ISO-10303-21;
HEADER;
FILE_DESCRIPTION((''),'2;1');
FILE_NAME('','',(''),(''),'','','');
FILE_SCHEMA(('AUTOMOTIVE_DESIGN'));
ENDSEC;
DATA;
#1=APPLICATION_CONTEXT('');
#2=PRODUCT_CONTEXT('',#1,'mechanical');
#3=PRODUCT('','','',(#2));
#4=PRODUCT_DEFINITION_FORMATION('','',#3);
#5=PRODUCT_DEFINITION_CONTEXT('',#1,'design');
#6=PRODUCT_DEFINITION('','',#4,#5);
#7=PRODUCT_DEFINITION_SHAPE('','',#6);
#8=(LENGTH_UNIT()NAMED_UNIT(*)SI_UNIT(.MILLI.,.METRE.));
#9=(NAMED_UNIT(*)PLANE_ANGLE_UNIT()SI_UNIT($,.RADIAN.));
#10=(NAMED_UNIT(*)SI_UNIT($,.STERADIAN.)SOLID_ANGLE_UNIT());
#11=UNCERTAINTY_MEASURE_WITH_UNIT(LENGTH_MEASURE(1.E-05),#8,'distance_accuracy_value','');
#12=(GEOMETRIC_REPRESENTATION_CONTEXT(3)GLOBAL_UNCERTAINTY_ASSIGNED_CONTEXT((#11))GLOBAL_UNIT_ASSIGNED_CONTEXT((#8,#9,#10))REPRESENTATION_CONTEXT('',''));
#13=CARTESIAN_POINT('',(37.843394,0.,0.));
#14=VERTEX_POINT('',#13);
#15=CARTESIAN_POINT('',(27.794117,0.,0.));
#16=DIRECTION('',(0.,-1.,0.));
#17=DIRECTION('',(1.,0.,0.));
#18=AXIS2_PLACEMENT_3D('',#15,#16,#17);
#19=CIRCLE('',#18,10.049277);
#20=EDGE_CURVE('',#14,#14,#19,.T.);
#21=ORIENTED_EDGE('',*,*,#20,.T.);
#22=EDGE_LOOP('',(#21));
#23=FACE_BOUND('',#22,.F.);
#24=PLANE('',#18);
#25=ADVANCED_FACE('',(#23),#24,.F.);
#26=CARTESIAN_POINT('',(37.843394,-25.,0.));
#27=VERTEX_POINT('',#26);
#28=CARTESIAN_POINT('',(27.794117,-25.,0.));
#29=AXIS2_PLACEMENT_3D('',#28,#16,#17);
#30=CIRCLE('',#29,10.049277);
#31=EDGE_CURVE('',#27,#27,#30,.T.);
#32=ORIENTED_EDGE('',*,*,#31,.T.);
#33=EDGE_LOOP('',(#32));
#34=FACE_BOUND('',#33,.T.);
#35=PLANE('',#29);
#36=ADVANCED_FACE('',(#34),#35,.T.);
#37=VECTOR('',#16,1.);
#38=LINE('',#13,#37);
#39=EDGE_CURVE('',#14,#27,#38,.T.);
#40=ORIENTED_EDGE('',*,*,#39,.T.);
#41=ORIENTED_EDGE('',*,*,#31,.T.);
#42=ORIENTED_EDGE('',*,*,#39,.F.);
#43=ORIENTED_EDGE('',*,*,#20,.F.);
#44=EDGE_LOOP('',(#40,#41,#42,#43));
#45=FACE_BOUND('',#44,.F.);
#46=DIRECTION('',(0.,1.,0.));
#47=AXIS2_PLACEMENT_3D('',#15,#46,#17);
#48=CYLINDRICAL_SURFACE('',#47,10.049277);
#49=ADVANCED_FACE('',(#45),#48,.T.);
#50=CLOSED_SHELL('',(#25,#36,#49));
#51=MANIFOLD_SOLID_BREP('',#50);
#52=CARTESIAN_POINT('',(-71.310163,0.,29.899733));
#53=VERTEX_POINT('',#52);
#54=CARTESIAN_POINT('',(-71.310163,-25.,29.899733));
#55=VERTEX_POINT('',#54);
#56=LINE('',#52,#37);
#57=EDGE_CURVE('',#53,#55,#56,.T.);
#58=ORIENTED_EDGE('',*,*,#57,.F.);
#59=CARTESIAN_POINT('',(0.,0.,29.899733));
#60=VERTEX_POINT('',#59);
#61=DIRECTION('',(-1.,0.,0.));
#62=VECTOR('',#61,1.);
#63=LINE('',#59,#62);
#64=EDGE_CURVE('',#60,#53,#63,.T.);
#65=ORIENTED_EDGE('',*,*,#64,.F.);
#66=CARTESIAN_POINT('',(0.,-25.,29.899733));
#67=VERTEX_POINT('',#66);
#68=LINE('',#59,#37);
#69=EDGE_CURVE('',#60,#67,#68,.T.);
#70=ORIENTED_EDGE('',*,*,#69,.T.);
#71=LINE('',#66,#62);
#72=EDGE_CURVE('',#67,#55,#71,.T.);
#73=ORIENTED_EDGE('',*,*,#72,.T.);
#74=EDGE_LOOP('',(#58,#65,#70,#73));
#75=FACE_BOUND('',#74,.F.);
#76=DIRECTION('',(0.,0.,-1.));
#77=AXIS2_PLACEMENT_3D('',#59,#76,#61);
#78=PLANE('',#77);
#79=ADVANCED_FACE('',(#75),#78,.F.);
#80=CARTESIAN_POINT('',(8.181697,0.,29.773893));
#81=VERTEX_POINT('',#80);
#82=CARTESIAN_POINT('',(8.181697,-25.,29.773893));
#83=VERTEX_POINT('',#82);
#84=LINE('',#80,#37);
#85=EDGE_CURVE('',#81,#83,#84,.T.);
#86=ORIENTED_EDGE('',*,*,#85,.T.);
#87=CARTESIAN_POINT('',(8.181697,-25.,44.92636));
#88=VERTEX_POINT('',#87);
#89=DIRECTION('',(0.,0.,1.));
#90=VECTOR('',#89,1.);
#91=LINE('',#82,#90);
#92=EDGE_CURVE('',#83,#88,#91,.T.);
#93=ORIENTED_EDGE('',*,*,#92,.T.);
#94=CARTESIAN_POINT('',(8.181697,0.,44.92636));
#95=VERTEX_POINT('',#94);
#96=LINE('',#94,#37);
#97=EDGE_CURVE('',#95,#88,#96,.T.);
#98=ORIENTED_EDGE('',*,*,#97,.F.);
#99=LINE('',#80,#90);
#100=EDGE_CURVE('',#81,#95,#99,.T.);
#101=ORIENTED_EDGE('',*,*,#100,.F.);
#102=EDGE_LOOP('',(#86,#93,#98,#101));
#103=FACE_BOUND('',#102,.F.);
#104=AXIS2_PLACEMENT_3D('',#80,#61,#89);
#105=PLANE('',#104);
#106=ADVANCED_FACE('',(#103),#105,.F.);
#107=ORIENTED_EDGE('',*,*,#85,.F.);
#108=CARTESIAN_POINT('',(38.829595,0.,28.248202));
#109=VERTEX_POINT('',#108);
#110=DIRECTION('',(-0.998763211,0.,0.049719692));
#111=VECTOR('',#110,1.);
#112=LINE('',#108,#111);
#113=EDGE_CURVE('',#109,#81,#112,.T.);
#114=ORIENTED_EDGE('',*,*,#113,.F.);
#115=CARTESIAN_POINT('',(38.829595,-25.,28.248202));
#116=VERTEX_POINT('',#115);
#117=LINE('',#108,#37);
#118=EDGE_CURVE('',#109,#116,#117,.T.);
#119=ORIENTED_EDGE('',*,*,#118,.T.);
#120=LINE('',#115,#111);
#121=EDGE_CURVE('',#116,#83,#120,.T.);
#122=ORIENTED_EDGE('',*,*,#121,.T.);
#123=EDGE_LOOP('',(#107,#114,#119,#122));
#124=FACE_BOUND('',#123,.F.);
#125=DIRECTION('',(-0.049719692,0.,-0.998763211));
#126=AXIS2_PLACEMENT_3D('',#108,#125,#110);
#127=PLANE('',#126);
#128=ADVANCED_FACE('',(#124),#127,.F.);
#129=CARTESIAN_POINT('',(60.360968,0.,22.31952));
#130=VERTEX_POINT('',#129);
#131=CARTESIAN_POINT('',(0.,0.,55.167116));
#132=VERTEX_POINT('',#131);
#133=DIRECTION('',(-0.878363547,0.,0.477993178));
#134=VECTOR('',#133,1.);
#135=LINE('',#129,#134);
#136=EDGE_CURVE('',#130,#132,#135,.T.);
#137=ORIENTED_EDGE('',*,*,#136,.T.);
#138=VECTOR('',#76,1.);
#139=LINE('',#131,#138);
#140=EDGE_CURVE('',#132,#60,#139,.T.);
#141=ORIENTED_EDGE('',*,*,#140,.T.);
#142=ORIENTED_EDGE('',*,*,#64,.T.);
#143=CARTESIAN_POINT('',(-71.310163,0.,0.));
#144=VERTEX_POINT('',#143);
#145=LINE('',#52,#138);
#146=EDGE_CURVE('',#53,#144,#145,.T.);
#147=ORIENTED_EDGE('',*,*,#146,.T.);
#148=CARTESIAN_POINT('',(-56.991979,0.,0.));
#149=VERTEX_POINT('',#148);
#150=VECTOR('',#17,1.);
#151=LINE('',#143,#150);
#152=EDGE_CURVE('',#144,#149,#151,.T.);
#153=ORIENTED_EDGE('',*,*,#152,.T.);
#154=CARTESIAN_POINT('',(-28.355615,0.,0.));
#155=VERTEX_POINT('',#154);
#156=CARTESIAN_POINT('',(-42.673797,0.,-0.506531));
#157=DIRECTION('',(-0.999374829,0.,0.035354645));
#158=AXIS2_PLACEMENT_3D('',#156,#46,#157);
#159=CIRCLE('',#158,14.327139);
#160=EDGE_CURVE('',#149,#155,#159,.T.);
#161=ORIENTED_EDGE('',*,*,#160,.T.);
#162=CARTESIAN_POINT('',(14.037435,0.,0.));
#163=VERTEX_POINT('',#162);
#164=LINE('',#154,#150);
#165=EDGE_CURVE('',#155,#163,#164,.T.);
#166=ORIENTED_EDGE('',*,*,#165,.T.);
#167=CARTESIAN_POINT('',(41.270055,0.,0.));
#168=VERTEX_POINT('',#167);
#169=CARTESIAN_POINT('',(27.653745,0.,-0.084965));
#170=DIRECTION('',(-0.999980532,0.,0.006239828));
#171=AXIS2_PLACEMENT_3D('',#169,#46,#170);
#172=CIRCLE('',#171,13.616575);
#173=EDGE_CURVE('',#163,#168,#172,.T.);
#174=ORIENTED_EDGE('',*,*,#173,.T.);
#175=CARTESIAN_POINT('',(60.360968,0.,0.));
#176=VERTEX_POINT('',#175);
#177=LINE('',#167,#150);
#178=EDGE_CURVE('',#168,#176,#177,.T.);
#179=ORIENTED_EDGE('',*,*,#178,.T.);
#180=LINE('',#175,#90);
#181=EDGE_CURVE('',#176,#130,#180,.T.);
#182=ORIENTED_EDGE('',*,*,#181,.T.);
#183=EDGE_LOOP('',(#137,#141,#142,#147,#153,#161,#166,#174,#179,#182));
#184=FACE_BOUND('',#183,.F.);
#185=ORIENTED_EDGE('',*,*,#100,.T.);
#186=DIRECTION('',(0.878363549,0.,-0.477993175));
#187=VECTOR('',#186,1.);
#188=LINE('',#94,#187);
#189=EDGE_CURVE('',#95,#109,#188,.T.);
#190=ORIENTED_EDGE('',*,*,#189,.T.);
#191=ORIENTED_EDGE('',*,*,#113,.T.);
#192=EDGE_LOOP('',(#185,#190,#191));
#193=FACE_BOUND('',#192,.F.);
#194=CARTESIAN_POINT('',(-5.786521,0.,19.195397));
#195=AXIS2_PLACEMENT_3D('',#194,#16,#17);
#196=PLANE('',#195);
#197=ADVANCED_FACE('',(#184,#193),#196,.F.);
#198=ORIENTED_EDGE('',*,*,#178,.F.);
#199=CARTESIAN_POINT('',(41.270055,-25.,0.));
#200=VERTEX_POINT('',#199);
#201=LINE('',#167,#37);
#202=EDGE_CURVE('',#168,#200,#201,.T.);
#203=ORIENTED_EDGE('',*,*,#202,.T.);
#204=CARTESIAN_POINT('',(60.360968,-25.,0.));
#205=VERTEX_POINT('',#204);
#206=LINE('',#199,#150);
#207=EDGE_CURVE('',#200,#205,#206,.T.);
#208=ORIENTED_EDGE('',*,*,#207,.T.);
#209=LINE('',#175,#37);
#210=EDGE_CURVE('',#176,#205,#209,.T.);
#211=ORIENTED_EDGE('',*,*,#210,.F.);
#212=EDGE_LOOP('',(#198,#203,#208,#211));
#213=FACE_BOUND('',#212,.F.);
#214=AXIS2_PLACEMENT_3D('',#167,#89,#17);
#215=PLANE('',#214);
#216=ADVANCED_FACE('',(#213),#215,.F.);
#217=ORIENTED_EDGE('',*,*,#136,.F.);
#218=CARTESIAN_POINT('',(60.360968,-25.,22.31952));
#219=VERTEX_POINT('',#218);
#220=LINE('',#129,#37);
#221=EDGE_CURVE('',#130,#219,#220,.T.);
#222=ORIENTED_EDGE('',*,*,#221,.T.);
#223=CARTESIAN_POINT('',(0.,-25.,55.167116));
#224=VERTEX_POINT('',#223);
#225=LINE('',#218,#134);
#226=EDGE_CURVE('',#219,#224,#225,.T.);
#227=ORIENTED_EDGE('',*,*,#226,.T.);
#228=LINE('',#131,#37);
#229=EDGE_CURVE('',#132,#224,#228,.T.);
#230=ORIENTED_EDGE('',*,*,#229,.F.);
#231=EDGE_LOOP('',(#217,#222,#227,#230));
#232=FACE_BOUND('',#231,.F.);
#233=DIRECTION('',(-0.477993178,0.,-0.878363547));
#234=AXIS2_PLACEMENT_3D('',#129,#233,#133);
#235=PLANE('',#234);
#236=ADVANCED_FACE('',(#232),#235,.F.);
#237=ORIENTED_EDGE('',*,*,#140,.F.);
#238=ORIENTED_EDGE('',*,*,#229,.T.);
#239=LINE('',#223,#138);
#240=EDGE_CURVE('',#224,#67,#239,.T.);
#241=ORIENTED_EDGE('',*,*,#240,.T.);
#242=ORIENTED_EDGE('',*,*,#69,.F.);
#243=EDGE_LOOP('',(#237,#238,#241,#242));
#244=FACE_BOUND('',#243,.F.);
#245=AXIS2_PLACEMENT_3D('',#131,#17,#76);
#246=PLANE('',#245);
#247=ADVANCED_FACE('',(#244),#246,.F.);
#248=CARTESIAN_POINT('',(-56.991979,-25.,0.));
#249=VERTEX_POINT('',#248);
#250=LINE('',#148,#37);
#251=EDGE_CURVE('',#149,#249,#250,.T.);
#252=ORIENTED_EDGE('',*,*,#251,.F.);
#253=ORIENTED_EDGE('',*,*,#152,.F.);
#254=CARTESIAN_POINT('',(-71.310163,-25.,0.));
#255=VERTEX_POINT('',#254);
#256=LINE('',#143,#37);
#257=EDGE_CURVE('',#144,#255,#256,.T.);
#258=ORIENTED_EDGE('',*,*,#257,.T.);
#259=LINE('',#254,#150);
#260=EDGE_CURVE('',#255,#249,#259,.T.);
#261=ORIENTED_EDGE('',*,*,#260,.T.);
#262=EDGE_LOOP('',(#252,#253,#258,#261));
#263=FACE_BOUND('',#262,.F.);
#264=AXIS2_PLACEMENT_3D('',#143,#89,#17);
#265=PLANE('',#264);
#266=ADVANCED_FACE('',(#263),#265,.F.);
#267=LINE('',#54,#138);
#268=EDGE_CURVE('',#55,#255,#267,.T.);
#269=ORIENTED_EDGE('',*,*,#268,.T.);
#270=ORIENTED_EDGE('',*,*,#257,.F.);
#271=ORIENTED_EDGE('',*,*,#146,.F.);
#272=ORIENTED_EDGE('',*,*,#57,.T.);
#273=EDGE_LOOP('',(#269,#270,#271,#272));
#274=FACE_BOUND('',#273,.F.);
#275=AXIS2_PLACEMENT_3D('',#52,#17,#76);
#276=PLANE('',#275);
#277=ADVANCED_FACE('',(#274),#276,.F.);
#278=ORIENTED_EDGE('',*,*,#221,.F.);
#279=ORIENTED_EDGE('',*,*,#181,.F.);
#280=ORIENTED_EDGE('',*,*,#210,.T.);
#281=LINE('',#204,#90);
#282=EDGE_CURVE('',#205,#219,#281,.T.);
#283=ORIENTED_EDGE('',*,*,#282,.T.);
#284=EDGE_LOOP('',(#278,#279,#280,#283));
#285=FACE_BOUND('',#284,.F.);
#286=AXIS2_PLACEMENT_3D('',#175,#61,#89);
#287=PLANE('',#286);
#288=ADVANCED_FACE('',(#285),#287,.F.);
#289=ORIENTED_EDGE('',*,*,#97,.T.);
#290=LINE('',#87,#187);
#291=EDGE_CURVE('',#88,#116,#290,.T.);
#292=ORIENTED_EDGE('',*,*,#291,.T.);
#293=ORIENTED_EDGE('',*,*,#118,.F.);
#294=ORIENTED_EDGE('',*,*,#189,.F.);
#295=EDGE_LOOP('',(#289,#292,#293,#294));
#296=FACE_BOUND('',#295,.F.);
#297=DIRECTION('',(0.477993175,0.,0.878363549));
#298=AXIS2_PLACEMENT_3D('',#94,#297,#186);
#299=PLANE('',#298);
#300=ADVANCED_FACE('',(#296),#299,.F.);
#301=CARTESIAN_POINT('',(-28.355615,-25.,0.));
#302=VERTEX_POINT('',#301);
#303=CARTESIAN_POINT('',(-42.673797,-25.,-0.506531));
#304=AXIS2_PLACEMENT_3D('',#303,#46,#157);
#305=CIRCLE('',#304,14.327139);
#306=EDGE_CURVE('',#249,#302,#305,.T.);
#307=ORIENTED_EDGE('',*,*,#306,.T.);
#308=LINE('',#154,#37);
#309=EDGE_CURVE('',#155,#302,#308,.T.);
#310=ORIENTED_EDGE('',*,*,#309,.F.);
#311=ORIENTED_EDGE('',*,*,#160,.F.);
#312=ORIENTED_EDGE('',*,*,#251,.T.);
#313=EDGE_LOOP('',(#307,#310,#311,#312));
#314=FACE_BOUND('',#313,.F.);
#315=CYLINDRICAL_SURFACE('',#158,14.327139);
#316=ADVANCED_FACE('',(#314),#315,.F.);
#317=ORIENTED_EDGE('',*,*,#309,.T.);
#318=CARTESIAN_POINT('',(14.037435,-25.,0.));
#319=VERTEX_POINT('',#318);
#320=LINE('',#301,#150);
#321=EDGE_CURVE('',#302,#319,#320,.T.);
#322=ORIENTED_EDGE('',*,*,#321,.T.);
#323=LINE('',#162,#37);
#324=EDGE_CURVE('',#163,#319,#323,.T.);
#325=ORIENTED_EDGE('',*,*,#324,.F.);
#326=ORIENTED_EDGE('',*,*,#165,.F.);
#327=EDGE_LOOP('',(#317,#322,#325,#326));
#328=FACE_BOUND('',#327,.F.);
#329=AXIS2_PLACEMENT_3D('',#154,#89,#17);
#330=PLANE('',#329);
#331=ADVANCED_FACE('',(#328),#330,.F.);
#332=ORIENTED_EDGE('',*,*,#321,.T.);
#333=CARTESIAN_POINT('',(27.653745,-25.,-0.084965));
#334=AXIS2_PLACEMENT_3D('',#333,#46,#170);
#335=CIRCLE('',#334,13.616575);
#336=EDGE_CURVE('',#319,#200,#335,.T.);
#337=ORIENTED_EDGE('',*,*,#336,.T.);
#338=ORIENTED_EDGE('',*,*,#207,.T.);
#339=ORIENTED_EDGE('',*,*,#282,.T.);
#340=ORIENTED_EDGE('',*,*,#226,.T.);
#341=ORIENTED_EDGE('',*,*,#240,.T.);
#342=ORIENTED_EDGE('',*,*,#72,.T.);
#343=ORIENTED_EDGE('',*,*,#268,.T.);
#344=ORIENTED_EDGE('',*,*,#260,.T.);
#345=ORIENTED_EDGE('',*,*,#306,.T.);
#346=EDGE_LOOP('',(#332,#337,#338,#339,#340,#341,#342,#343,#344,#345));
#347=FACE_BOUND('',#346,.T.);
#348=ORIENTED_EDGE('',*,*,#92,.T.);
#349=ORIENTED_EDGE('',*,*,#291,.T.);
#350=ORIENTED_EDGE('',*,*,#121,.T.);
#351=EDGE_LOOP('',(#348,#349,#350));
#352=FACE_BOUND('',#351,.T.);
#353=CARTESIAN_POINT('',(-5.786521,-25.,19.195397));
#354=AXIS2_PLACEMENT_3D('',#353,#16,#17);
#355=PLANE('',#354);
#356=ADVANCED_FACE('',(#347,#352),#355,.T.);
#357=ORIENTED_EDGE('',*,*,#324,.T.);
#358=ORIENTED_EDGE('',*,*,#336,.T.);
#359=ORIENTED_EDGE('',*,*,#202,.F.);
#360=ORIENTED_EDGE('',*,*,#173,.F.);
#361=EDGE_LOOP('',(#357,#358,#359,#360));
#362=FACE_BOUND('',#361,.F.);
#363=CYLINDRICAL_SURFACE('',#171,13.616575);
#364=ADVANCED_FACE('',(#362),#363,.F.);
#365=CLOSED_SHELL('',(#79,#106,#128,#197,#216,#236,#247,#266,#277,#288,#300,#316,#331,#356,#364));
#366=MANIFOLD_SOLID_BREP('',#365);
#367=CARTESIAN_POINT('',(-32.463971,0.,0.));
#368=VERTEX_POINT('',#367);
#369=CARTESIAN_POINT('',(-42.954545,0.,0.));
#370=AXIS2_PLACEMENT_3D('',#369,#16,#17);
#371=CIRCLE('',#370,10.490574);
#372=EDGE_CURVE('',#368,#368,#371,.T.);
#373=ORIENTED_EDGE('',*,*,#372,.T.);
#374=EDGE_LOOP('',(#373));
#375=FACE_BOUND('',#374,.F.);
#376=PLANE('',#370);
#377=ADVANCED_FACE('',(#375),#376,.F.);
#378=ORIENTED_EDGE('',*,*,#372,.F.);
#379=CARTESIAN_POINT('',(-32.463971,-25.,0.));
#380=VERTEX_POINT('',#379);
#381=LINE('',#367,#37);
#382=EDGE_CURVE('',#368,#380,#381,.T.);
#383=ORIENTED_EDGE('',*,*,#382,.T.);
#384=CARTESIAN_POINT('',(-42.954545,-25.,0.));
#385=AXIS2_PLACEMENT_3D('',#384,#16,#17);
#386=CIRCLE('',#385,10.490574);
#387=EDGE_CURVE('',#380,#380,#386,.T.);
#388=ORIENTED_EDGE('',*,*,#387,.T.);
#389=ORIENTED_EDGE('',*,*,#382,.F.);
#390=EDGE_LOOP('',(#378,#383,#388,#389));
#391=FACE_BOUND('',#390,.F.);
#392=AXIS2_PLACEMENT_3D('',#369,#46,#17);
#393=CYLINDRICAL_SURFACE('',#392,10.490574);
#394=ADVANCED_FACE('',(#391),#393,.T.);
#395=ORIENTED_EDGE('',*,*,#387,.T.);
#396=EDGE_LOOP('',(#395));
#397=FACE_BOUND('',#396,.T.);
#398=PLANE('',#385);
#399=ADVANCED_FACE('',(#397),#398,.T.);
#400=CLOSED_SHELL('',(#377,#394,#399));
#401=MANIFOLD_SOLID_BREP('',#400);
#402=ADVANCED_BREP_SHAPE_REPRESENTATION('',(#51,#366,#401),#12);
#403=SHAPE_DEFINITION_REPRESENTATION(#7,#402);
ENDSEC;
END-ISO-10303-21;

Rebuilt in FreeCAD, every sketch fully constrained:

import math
import FreeCAD as App
import Part
import Sketcher

V = App.Vector
Q = App.Units.Quantity


def add_polygon(sketch, points):
    """Adds a closed chain of lines whose ends are joined by coincident constraints."""
    first, n = sketch.GeometryCount, len(points)
    for a, b in zip(points, points[1:] + points[:1]):
        sketch.addGeometry(Part.LineSegment(App.Vector(*a, 0), App.Vector(*b, 0)), False)
    for i in range(n):
        sketch.addConstraint(Sketcher.Constraint("Coincident", first + i, 2, first + (i + 1) % n, 1))

doc = App.newDocument("Part")
body = doc.addObject("PartDesign::Body", "Body")
body.AllowCompound = True

# Sketch on XZ plane
sketch1 = doc.addObject("Sketcher::SketchObject", "Sketch")
body.addObject(sketch1)
sketch1.AttachmentSupport = (doc.XZ_Plane, [""])
sketch1.MapMode = "FlatFace"
sketch1.addGeometry(Part.Circle(V(-43, 0, 0), V(0, 0, 1), 10), False)  # 0
sketch1.addGeometry(Part.Circle(V(28, 0, 0), V(0, 0, 1), 10), False)  # 1
sketch1.addGeometry(Part.LineSegment(V(-71, 30, 0), V(-71, 0, 0)), False)  # 2
sketch1.addGeometry(Part.LineSegment(V(-71, 0, 0), V(-57, 0, 0)), False)  # 3
sketch1.addGeometry(Part.ArcOfCircle(Part.Circle(V(-43, -1, 0), V(0, 0, 1), 14), math.radians(2), math.radians(178)), False)  # 4
sketch1.addGeometry(Part.LineSegment(V(-28, 0, 0), V(14, 0, 0)), False)  # 5
sketch1.addGeometry(Part.ArcOfCircle(Part.Circle(V(28, 0, 0), V(0, 0, 1), 14), math.radians(0), math.radians(180)), False)  # 6
sketch1.addGeometry(Part.LineSegment(V(41, 0, 0), V(60, 0, 0)), False)  # 7
sketch1.addGeometry(Part.LineSegment(V(60, 0, 0), V(60, 22, 0)), False)  # 8
sketch1.addGeometry(Part.LineSegment(V(60, 22, 0), V(0, 55, 0)), False)  # 9
sketch1.addGeometry(Part.LineSegment(V(0, 55, 0), V(0, 30, 0)), False)  # 10
sketch1.addGeometry(Part.LineSegment(V(0, 30, 0), V(-71, 30, 0)), False)  # 11
add_polygon(sketch1, [(39, 28), (8, 30), (8, 45)])  # lines 12-14
sketch1.addConstraint([
    Sketcher.Constraint("Coincident", 2, 2, 3, 1),
    Sketcher.Constraint("Coincident", 3, 2, 4, 2),
    Sketcher.Constraint("Coincident", 4, 1, 5, 1),
    Sketcher.Constraint("Coincident", 5, 2, 6, 2),
    Sketcher.Constraint("Coincident", 6, 1, 7, 1),
    Sketcher.Constraint("Coincident", 7, 2, 8, 1),
    Sketcher.Constraint("Coincident", 8, 2, 9, 1),
    Sketcher.Constraint("Coincident", 9, 2, 10, 1),
    Sketcher.Constraint("Coincident", 10, 2, 11, 1),
    Sketcher.Constraint("Coincident", 11, 2, 2, 1),
    Sketcher.Constraint("Vertical", 2),
    Sketcher.Constraint("Horizontal", 3),
    Sketcher.Constraint("Horizontal", 5),
    Sketcher.Constraint("Horizontal", 7),
    Sketcher.Constraint("Vertical", 8),
    Sketcher.Constraint("Vertical", 10),
    Sketcher.Constraint("Horizontal", 11),
    Sketcher.Constraint("Vertical", 13),
    Sketcher.Constraint("PointOnObject", 0, 3, -1),
    Sketcher.Constraint("PointOnObject", 1, 3, -1),
    Sketcher.Constraint("PointOnObject", 2, 2, -1),
    Sketcher.Constraint("PointOnObject", 4, 1, -1),
    Sketcher.Constraint("PointOnObject", 6, 1, -1),
    Sketcher.Constraint("PointOnObject", 9, 2, -2),
    Sketcher.Constraint("Parallel", 9, 14),
    Sketcher.Constraint("Diameter", 0, Q("20.981148 mm")),
    Sketcher.Constraint("Radius", 4, Q("14.327139 mm")),
    Sketcher.Constraint("Diameter", 1, Q("20.098554 mm")),
    Sketcher.Constraint("Radius", 6, Q("13.616575 mm")),
    Sketcher.Constraint("Distance", 9, Q("68.719801 mm")),
    Sketcher.Constraint("DistanceX", 5, 1, 5, 2, Q("42.39305 mm")),
    Sketcher.Constraint("DistanceY", 8, 1, 8, 2, Q("22.31952 mm")),
    Sketcher.Constraint("DistanceY", -1, 1, 14, 2, Q("28.248202 mm")),
    Sketcher.Constraint("DistanceY", 6, 3, 10, 2, Q("29.984698 mm")),
    Sketcher.Constraint("Distance", 12, Q("30.68585 mm")),
    Sketcher.Constraint("DistanceX", 3, 1, 3, 2, Q("14.318184 mm")),
    Sketcher.Constraint("DistanceX", 7, 1, 7, 2, Q("19.090913 mm")),
    Sketcher.Constraint("DistanceX", 11, 2, 11, 1, Q("71.310163 mm")),
    Sketcher.Constraint("DistanceY", 2, 2, 2, 1, Q("29.899733 mm")),
    Sketcher.Constraint("DistanceY", 10, 2, 10, 1, Q("25.267383 mm")),
    Sketcher.Constraint("DistanceY", 13, 1, 13, 2, Q("15.152467 mm")),
    Sketcher.Constraint("DistanceX", 0, 3, 1, 3, Q("70.748662 mm")),
    Sketcher.Constraint("DistanceX", 0, 3, 4, 3, Q("0.280748 mm")),
    Sketcher.Constraint("DistanceX", 12, 2, 5, 2, Q("5.855738 mm")),
])
pad1 = doc.addObject("PartDesign::Pad", "Pad")
body.addObject(pad1)
pad1.Profile = sketch1
pad1.Length = 25

doc.recompute()
